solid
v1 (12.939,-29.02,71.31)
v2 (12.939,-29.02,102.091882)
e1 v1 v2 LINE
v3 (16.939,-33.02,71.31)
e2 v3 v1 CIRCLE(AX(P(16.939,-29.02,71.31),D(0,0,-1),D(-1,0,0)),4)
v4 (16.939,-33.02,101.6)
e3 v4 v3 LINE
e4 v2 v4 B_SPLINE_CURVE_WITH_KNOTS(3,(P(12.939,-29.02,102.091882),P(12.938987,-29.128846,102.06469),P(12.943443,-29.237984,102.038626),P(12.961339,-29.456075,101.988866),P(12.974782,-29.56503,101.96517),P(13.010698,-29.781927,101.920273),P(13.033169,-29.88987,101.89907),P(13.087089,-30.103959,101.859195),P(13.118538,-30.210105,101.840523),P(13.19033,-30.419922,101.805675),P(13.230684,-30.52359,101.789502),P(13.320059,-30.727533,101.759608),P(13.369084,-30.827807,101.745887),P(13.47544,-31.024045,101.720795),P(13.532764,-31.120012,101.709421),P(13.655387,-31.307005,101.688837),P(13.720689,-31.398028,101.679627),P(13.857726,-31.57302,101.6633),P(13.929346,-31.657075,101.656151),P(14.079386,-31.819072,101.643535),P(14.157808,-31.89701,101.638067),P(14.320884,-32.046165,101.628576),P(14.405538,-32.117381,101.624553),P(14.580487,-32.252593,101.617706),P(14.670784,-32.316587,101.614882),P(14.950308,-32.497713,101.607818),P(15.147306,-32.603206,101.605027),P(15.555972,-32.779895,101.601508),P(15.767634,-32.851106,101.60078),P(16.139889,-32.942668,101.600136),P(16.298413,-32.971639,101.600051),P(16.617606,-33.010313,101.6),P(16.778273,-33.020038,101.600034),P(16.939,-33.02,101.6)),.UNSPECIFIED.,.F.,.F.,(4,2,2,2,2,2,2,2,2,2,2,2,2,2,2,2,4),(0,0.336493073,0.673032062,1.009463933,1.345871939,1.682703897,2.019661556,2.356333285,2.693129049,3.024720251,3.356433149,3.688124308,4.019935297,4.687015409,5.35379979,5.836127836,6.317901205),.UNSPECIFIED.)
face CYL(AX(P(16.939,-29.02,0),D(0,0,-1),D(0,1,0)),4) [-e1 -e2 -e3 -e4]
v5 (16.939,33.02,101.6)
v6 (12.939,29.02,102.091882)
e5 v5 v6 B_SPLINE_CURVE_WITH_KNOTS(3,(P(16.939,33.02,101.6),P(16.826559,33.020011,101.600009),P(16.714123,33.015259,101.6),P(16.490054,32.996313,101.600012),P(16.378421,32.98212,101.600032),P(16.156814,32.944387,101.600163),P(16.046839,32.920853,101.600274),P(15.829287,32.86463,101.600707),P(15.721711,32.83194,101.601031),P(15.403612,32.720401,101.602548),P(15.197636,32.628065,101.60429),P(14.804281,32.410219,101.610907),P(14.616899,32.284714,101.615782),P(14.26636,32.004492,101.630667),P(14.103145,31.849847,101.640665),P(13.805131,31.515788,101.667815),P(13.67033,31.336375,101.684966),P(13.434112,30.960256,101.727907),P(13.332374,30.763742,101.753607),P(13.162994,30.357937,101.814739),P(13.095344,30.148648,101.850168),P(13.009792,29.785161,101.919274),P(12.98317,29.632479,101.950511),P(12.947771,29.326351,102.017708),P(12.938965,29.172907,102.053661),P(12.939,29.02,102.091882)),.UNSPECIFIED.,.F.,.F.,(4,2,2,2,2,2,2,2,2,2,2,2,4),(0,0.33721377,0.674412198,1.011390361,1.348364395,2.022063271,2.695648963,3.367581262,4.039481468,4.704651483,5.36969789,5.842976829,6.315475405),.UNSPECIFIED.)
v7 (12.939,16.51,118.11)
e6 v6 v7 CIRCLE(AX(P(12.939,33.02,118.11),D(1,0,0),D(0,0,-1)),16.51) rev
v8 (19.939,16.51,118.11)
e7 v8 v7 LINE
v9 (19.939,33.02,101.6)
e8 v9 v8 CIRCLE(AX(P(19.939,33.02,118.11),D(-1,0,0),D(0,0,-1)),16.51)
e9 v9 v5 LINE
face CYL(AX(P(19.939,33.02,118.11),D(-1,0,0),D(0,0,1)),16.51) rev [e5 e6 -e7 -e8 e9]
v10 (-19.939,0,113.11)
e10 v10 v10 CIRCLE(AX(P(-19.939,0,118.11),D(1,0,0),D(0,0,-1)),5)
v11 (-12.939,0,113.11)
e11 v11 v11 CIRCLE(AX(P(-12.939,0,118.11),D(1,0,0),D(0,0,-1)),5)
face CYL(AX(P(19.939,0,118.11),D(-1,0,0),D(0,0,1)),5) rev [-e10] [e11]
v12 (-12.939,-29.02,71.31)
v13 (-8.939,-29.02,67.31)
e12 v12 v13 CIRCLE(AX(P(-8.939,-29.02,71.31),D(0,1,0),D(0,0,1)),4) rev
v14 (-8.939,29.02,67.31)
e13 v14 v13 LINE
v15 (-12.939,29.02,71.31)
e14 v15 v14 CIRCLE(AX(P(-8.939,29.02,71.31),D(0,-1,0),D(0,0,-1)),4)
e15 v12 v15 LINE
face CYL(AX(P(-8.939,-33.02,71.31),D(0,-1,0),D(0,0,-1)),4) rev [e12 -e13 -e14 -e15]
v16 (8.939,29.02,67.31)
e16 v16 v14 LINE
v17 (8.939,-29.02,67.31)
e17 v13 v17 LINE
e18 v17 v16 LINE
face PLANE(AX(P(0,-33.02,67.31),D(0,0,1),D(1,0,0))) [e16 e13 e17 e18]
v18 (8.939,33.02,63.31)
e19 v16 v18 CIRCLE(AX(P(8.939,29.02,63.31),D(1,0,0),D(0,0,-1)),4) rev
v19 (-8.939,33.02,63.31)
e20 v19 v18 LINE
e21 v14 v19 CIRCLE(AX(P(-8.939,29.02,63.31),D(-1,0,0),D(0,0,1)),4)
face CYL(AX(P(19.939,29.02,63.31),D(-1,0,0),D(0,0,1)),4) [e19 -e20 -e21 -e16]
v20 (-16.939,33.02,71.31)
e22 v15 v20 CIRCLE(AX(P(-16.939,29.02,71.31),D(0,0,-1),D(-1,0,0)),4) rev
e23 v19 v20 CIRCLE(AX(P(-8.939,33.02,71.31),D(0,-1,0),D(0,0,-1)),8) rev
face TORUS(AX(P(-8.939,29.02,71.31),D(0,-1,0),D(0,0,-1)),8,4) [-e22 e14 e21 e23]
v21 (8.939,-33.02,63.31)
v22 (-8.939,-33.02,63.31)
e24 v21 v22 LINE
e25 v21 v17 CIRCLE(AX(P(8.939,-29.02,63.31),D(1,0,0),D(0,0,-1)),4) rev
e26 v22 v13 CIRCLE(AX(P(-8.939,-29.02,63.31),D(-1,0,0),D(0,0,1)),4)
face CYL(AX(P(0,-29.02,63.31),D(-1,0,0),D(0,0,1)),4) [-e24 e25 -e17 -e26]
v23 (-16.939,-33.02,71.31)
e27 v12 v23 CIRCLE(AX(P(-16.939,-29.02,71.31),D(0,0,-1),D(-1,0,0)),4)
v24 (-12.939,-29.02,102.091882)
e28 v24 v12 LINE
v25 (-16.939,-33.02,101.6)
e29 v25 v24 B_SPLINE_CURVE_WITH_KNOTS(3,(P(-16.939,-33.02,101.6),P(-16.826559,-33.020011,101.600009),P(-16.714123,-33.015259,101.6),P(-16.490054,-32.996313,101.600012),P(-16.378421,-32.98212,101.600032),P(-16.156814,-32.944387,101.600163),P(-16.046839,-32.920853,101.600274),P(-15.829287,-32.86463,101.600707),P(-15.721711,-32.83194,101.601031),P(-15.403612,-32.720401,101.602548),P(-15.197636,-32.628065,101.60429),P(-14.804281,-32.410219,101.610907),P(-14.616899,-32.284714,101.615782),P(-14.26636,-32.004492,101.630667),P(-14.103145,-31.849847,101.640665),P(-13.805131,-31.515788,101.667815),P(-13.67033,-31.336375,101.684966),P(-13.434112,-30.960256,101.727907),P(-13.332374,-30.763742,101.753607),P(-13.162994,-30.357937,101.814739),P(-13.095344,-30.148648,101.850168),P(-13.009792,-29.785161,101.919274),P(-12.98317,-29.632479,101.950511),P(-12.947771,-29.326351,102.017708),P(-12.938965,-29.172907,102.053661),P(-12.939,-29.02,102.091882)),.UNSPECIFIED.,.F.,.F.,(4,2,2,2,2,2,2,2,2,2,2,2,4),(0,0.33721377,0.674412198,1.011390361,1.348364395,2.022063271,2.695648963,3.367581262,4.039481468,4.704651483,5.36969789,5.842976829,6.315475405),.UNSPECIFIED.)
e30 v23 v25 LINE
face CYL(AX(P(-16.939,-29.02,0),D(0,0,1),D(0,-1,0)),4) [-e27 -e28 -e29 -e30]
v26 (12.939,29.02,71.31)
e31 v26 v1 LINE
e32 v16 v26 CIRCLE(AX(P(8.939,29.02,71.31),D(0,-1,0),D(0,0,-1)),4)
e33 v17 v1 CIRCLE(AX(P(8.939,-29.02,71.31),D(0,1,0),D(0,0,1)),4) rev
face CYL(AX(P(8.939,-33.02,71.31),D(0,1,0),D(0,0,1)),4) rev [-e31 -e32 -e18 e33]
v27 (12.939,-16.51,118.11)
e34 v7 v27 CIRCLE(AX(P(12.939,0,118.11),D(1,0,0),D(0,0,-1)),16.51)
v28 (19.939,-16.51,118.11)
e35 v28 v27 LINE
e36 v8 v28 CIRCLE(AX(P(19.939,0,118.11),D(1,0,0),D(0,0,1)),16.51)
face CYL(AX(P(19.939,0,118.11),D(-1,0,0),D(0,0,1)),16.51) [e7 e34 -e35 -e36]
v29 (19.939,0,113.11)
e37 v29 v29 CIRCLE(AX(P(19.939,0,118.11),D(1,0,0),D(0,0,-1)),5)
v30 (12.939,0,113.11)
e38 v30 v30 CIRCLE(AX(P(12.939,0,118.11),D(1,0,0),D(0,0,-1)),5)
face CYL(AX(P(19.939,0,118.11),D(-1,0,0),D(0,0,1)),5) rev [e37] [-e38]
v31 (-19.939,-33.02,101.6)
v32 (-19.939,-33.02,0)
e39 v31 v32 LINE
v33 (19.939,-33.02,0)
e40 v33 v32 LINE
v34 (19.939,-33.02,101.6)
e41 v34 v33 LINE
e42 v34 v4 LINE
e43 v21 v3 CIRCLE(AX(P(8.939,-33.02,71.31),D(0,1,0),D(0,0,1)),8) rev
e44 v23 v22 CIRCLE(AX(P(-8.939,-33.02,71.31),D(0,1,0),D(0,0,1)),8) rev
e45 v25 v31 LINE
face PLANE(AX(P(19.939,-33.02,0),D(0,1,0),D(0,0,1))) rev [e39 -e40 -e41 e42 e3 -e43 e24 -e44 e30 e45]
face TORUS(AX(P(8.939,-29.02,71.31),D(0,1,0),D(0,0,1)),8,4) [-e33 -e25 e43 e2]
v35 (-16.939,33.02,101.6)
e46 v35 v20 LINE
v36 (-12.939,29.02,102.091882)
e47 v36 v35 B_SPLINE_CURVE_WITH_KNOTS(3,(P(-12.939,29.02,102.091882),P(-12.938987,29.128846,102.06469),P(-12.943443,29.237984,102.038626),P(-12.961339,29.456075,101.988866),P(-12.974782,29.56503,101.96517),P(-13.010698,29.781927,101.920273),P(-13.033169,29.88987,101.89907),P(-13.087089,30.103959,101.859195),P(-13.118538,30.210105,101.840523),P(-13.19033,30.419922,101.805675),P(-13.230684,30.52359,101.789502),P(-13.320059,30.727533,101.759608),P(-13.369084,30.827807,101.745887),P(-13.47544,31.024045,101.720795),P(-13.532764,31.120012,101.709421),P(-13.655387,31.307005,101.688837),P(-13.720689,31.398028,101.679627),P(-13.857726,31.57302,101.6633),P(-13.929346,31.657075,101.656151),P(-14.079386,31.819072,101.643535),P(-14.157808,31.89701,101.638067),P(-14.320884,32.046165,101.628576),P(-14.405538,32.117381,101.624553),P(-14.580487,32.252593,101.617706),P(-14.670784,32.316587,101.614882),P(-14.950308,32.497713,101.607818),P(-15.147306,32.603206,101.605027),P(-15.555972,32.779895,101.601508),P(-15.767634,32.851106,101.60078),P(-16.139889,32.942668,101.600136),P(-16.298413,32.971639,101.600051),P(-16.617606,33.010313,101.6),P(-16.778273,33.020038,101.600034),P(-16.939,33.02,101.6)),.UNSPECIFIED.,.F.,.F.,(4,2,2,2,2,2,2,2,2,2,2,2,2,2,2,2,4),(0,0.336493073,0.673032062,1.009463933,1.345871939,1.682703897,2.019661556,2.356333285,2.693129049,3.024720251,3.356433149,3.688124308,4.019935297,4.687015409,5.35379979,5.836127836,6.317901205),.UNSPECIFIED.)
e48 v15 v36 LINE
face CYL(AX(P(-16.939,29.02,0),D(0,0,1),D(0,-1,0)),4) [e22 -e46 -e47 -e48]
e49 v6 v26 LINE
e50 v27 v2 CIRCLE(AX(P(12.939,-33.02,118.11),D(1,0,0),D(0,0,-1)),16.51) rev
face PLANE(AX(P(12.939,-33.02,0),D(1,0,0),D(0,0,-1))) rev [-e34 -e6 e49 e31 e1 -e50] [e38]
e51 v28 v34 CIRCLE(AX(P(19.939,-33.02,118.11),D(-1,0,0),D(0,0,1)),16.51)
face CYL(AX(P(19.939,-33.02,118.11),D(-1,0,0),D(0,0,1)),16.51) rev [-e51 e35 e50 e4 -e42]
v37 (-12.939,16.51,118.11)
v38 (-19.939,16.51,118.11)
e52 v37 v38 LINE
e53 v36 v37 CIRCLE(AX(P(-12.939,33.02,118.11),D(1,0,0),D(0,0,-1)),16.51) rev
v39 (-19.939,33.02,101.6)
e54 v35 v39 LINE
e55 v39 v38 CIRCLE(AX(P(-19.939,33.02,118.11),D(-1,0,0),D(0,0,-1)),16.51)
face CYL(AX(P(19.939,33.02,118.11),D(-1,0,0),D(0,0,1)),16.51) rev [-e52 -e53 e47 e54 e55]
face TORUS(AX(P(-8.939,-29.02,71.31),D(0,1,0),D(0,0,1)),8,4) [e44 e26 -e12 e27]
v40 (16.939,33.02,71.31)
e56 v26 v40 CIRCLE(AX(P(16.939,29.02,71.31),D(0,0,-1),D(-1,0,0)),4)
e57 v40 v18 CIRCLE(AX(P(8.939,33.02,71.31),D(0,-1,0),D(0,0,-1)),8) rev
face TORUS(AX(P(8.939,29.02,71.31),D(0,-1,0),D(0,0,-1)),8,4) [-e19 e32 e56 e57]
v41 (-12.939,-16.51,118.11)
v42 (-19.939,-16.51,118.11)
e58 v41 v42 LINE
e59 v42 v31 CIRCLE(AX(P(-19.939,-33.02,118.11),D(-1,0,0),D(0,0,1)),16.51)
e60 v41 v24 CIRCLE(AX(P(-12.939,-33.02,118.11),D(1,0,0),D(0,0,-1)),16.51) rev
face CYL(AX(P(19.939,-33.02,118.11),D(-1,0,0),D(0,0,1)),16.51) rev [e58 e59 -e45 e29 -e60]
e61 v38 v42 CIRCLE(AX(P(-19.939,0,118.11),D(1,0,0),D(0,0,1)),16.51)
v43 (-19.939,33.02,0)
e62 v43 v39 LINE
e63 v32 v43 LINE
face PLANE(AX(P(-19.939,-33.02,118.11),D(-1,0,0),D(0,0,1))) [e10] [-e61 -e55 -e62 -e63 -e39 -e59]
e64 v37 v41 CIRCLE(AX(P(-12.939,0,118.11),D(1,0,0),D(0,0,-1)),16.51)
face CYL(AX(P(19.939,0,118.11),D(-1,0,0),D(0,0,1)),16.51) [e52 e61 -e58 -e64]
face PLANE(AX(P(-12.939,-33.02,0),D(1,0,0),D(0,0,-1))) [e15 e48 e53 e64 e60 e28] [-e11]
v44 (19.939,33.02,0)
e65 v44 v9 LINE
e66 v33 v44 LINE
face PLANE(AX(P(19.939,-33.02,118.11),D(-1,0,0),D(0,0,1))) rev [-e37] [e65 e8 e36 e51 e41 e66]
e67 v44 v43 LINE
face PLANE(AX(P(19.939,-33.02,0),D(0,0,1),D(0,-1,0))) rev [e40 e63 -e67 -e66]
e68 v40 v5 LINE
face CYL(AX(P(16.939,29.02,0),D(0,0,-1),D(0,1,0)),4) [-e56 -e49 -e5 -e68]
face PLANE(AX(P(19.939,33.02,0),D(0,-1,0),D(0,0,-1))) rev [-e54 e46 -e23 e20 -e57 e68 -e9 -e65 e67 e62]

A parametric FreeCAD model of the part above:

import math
import FreeCAD as App
import Part
import Sketcher
Q = App.Units.Quantity


def edges_at(feature, points):
    """Names of the edges that pass closest to the given points."""
    edges = feature.Shape.Edges
    near = lambda p: min(range(len(edges)), key=lambda i: edges[i].distToShape(Part.Vertex(*p))[0])
    return sorted({f"Edge{near(p) + 1}" for p in points})

doc = App.newDocument("Part")
params = doc.addObject("Spreadsheet::Sheet", "Params")
for row, (alias, value) in enumerate([
    ("sketch1_height", "4 in"),
    ("sketch1_radius", "0.65 in"),
    ("pad1_length", "1.57 in"),
    ("sketch2_height", "2.65 in"),
    ("fillet_radius", "4 mm"),
], start=1):
    params.set(f"A{row}", alias)
    params.set(f"B{row}", "=" + value)
    params.setAlias(f"B{row}", alias)

body = doc.addObject("PartDesign::Body", "Body")

sketch1 = doc.addObject("Sketcher::SketchObject", "Sketch")
body.addObject(sketch1)
sketch1.AttachmentSupport = (doc.YZ_Plane, [""])
sketch1.MapMode = "FlatFace"
sketch1.addGeometry(Part.LineSegment(App.Vector(-33, 0, 0), App.Vector(33, 0, 0)), False)
sketch1.addGeometry(Part.LineSegment(App.Vector(33, 0, 0), App.Vector(33, 102, 0)), False)
sketch1.addGeometry(Part.ArcOfCircle(Part.Circle(App.Vector(33, 118, 0), App.Vector(0, 0, 1), 17), math.radians(-180), math.radians(-90)), False)
sketch1.addGeometry(Part.ArcOfCircle(Part.Circle(App.Vector(0, 118, 0), App.Vector(0, 0, 1), 17), math.radians(0), math.radians(180)), False)
sketch1.addGeometry(Part.ArcOfCircle(Part.Circle(App.Vector(-33, 118, 0), App.Vector(0, 0, 1), 17), math.radians(-90), math.radians(0)), False)
sketch1.addGeometry(Part.LineSegment(App.Vector(-33, 102, 0), App.Vector(-33, 0, 0)), False)
sketch1.addGeometry(Part.Circle(App.Vector(0, 118, 0), App.Vector(0, 0, 1), 5), False)
sketch1.addConstraint(Sketcher.Constraint("Coincident", 0, 2, 1, 1))
sketch1.addConstraint(Sketcher.Constraint("Coincident", 1, 2, 2, 2))
sketch1.addConstraint(Sketcher.Constraint("Tangent", 2, 1, 3, 1))
sketch1.addConstraint(Sketcher.Constraint("Tangent", 3, 2, 4, 2))
sketch1.addConstraint(Sketcher.Constraint("Coincident", 4, 1, 5, 1))
sketch1.addConstraint(Sketcher.Constraint("Coincident", 5, 2, 0, 1))
sketch1.addConstraint(Sketcher.Constraint("Horizontal", 0))
sketch1.addConstraint(Sketcher.Constraint("Vertical", 1))
sketch1.addConstraint(Sketcher.Constraint("Vertical", 5))
sketch1.addConstraint(Sketcher.Constraint("Coincident", 6, 3, 3, 3))
sketch1.addConstraint(Sketcher.Constraint("Equal", 2, 3))
sketch1.addConstraint(Sketcher.Constraint("Equal", 3, 4))
sketch1.addConstraint(Sketcher.Constraint("Symmetric", 0, 2, 5, 2, -1, 1))
sketch1.addConstraint(Sketcher.Constraint("Symmetric", 2, 3, 4, 3, -2))
sketch1.addConstraint(Sketcher.Constraint("Horizontal", 2, 3, 3, 3))
sketch1.addConstraint(Sketcher.Constraint("Vertical", 2, 3, 0, 2))
sketch1.addConstraint(Sketcher.Constraint("DistanceY", 1, 1, 1, 2, Q("4 in")))
sketch1.addConstraint(Sketcher.Constraint("Radius", 2, Q("0.65 in")))
sketch1.addConstraint(Sketcher.Constraint("Diameter", 6, 10.0))
sketch1.setExpression("Constraints[16]", "Params.sketch1_height")
sketch1.setExpression("Constraints[17]", "Params.sketch1_radius")
pad1 = doc.addObject("PartDesign::Pad", "Pad")
body.addObject(pad1)
pad1.Profile = sketch1
pad1.setExpression("Length", "Params.pad1_length")
pad1.Midplane = True

sketch2 = doc.addObject("Sketcher::SketchObject", "Sketch001")
body.addObject(sketch2)
sketch2.AttachmentSupport = (doc.XZ_Plane, [""])
sketch2.MapMode = "FlatFace"
sketch2.addGeometry(Part.LineSegment(App.Vector(13, 135, 0), App.Vector(13, 67, 0)), False)
sketch2.addGeometry(Part.LineSegment(App.Vector(13, 67, 0), App.Vector(-13, 67, 0)), False)
sketch2.addGeometry(Part.LineSegment(App.Vector(-13, 67, 0), App.Vector(-13, 135, 0)), False)
sketch2.addGeometry(Part.LineSegment(App.Vector(-13, 135, 0), App.Vector(13, 135, 0)), False)
sketch2.addConstraint(Sketcher.Constraint("Coincident", 0, 2, 1, 1))
sketch2.addConstraint(Sketcher.Constraint("Coincident", 1, 2, 2, 1))
sketch2.addConstraint(Sketcher.Constraint("Coincident", 2, 2, 3, 1))
sketch2.addConstraint(Sketcher.Constraint("Coincident", 3, 2, 0, 1))
sketch2.addConstraint(Sketcher.Constraint("Vertical", 0))
sketch2.addConstraint(Sketcher.Constraint("Horizontal", 1))
sketch2.addConstraint(Sketcher.Constraint("Vertical", 2))
sketch2.addConstraint(Sketcher.Constraint("Horizontal", 3))
sketch2.addConstraint(Sketcher.Constraint("DistanceY", 0, 2, 0, 1, Q("2.65 in")))
sketch2.addConstraint(Sketcher.Constraint("DistanceY", -1, 1, 2, 2, Q("5.3 in")))
sketch2.addConstraint(Sketcher.Constraint("DistanceX", 1, 2, 1, 1, 25.878))
sketch2.addConstraint(Sketcher.Constraint("DistanceX", -1, 1, 0, 2, 12.939))
sketch2.setExpression("Constraints[8]", "Params.sketch2_height")
pocket1 = doc.addObject("PartDesign::Pocket", "Pocket")
body.addObject(pocket1)
pocket1.Profile = sketch2
pocket1.Type = "ThroughAll"
pocket1.Midplane = True
doc.recompute()

fillet = doc.addObject("PartDesign::Fillet", "Fillet")
body.addObject(fillet)
fillet.Base = (pocket1, edges_at(pocket1, [
    (12.939, 33.02, 84.455),
    (-12.939, -33.02, 84.455),
    (0, -33.02, 67.31),
    (-12.939, 33.02, 84.455),
    (12.939, -33.02, 84.455),
    (12.939, 0, 67.31),
    (-12.939, 0, 67.31),
    (0, 33.02, 67.31),
]))
fillet.setExpression("Radius", "Params.fillet_radius")

doc.recompute()
